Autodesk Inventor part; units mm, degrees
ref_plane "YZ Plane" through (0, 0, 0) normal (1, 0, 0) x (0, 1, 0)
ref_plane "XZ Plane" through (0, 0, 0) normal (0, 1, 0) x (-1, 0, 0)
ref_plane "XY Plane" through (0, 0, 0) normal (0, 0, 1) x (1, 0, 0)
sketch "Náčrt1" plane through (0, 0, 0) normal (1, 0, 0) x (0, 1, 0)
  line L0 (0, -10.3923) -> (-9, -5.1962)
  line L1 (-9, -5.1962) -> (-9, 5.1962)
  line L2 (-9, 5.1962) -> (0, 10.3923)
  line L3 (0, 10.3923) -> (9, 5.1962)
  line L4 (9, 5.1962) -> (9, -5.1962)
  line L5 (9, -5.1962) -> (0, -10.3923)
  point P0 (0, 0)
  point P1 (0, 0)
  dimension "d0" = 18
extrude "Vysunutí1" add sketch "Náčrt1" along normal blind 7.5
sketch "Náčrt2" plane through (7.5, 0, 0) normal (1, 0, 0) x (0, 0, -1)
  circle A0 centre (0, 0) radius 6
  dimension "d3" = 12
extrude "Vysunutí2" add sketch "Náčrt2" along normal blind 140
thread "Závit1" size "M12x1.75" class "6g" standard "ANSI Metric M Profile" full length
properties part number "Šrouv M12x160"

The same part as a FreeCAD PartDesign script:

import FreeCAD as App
import Part
import Sketcher

V = App.Vector
Q = App.Units.Quantity


def add_polygon(sketch, points):
    """Adds a closed chain of lines whose ends are joined by coincident constraints."""
    first, n = sketch.GeometryCount, len(points)
    for a, b in zip(points, points[1:] + points[:1]):
        sketch.addGeometry(Part.LineSegment(App.Vector(*a, 0), App.Vector(*b, 0)), False)
    for i in range(n):
        sketch.addConstraint(Sketcher.Constraint("Coincident", first + i, 2, first + (i + 1) % n, 1))

doc = App.newDocument("Part")
params = doc.addObject("Spreadsheet::Sheet", "Params")
for row, (alias, value) in enumerate([
    ("pad1_length", "7.5 mm"),
    ("sketch2_diameter", "12 mm"),
    ("pad2_length", "140 mm"),
], start=1):
    params.set(f"A{row}", alias)
    params.set(f"B{row}", "=" + value)
    params.setAlias(f"B{row}", alias)

body = doc.addObject("PartDesign::Body", "Body")

sketch1 = body.newObject("Sketcher::SketchObject", "Sketch")
sketch1.AttachmentSupport = (doc.getObject("YZ_Plane"), [""])
sketch1.MapMode = "FlatFace"
add_polygon(sketch1, [(-9, -5), (0, -10), (9, -5), (9, 5), (0, 10), (-9, 5)])
sketch1.addConstraint([
    Sketcher.Constraint("Vertical", 2),
    Sketcher.Constraint("Vertical", 5),
    Sketcher.Constraint("Symmetric", 0, 2, 3, 2, -1, 1),
    Sketcher.Constraint("Symmetric", 1, 2, 4, 2, -1, 1),
    Sketcher.Constraint("PointOnObject", 0, 2, -2),
    Sketcher.Constraint("Parallel", 0, 3),
    Sketcher.Constraint("Horizontal", 2, 2, 4, 2),
    Sketcher.Constraint("DistanceX", 4, 2, 2, 2, Q("18 mm")),
    Sketcher.Constraint("Angle", 0, Q("-29.9997 deg")),
    Sketcher.Constraint("DistanceY", 2, 1, 2, 2, Q("10.3924 mm")),
])
pad1 = body.newObject("PartDesign::Pad", "Pad")
pad1.Profile = sketch1
pad1.setExpression("Length", "Params.pad1_length")

sketch2 = body.newObject("Sketcher::SketchObject", "Sketch001")
sketch2.AttachmentSupport = (doc.getObject("YZ_Plane"), [""])
sketch2.MapMode = "FlatFace"
sketch2.AttachmentOffset = App.Placement(V(0, 0, 7.5), App.Rotation())
sketch2.addGeometry(Part.Circle(V(0, 0, 0), V(0, 0, 1), 6), False)
sketch2.addConstraint([
    Sketcher.Constraint("Coincident", 0, 3, -1, 1),
    Sketcher.Constraint("Diameter", 0, Q("12 mm")),
])
sketch2.setExpression("Constraints[1]", "Params.sketch2_diameter")
pad2 = body.newObject("PartDesign::Pad", "Pad001")
pad2.Profile = sketch2
pad2.setExpression("Length", "Params.pad2_length")

doc.recompute()
